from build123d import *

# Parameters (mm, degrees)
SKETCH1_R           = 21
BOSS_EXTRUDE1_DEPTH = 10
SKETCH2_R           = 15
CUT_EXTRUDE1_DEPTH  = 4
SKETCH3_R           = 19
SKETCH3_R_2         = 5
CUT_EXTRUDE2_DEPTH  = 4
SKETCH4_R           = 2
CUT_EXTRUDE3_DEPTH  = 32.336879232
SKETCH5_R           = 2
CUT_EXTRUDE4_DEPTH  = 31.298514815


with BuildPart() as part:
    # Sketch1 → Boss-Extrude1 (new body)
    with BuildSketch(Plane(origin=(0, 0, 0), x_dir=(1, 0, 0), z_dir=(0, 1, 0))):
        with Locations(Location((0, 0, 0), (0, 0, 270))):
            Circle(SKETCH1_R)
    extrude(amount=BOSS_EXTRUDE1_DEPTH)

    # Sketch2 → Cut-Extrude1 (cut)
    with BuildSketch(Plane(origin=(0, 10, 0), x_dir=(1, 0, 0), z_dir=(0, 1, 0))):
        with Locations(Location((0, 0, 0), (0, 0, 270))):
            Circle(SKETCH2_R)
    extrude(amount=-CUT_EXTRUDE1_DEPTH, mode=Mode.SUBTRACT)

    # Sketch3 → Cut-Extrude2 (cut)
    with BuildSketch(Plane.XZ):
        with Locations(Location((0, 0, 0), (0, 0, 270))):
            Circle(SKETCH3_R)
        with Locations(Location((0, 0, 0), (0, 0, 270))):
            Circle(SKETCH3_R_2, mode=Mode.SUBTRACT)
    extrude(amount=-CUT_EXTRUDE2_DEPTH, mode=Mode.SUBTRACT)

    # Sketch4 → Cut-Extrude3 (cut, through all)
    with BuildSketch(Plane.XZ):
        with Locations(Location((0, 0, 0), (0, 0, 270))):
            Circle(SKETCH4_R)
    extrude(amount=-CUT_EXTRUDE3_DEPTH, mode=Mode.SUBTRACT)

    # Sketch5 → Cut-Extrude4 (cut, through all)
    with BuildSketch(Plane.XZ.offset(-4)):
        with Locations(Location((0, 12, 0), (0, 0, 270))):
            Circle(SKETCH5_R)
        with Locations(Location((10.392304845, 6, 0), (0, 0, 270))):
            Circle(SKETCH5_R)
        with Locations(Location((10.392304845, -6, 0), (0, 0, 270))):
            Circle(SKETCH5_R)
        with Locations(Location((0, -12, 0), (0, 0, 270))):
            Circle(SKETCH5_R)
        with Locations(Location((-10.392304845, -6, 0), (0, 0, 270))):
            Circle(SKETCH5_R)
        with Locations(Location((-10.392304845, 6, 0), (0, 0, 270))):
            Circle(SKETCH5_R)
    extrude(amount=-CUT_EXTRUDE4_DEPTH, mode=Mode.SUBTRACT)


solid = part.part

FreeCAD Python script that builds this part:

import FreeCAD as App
import Part
import Sketcher
from FreeCAD import Vector

doc = App.newDocument("Part")
body = doc.addObject("PartDesign::Body", "Body")

# Sketch on XZ plane
sketch1 = body.newObject("Sketcher::SketchObject", "Sketch")
sketch1.AttachmentSupport = (doc.getObject("XZ_Plane"), [""])
sketch1.MapMode = "FlatFace"
sketch1.addGeometry(Part.Circle(Vector(0, 0, 0), Vector(0, 0, 1), 21), False)
sketch1.addConstraint([
    Sketcher.Constraint("Coincident", 0, 3, -1, 1),
    Sketcher.Constraint("Diameter", 0, 42.0),
])
pad1 = body.newObject("PartDesign::Pad", "Pad")
pad1.Profile = sketch1
pad1.Length = 10
pad1.Reversed = True

# Sketch on XZ plane
sketch2 = body.newObject("Sketcher::SketchObject", "Sketch001")
sketch2.AttachmentSupport = (doc.getObject("XZ_Plane"), [""])
sketch2.MapMode = "FlatFace"
sketch2.AttachmentOffset = App.Placement(Vector(0, 0, -10), App.Rotation())
sketch2.addGeometry(Part.Circle(Vector(0, 0, 0), Vector(0, 0, 1), 15), False)
sketch2.addConstraint([
    Sketcher.Constraint("Coincident", 0, 3, -1, 1),
    Sketcher.Constraint("Diameter", 0, 30.0),
])
pocket1 = body.newObject("PartDesign::Pocket", "Pocket")
pocket1.Profile = sketch2
pocket1.Length = 4
pocket1.Reversed = True

# Sketch on XZ plane
sketch3 = body.newObject("Sketcher::SketchObject", "Sketch002")
sketch3.AttachmentSupport = (doc.getObject("XZ_Plane"), [""])
sketch3.MapMode = "FlatFace"
sketch3.addGeometry([
    Part.Circle(Vector(0, 0, 0), Vector(0, 0, 1), 19),
    Part.Circle(Vector(0, 0, 0), Vector(0, 0, 1), 5),
], False)
sketch3.addConstraint([
    Sketcher.Constraint("Coincident", 0, 3, -1, 1),
    Sketcher.Constraint("Coincident", 1, 3, -1, 1),
    Sketcher.Constraint("Diameter", 0, 38.0),
    Sketcher.Constraint("Diameter", 1, 10.0),
])
pocket2 = body.newObject("PartDesign::Pocket", "Pocket001")
pocket2.Profile = sketch3
pocket2.Length = 4

# Sketch on XZ plane
sketch4 = body.newObject("Sketcher::SketchObject", "Sketch003")
sketch4.AttachmentSupport = (doc.getObject("XZ_Plane"), [""])
sketch4.MapMode = "FlatFace"
sketch4.addGeometry(Part.Circle(Vector(0, 0, 0), Vector(0, 0, 1), 2), False)
sketch4.addConstraint([
    Sketcher.Constraint("Coincident", 0, 3, -1, 1),
    Sketcher.Constraint("Diameter", 0, 4.0),
])
pocket3 = body.newObject("PartDesign::Pocket", "Pocket002")
pocket3.Profile = sketch4
pocket3.Type = "ThroughAll"

# Sketch on XZ plane
sketch5 = body.newObject("Sketcher::SketchObject", "Sketch004")
sketch5.AttachmentSupport = (doc.getObject("XZ_Plane"), [""])
sketch5.MapMode = "FlatFace"
sketch5.AttachmentOffset = App.Placement(Vector(0, 0, -4), App.Rotation())
sketch5.addGeometry([
    Part.Circle(Vector(0, 12, 0), Vector(0, 0, 1), 2),  # 0
    Part.Circle(Vector(10.392305, 6, 0), Vector(0, 0, 1), 2),  # 1
    Part.Circle(Vector(10.392305, -6, 0), Vector(0, 0, 1), 2),  # 2
    Part.Circle(Vector(0, -12, 0), Vector(0, 0, 1), 2),  # 3
    Part.Circle(Vector(-10.392305, -6, 0), Vector(0, 0, 1), 2),  # 4
    Part.Circle(Vector(-10.392305, 6, 0), Vector(0, 0, 1), 2),  # 5
], False)
sketch5.addConstraint([
    Sketcher.Constraint("Equal", 0, 1),
    Sketcher.Constraint("Equal", 1, 2),
    Sketcher.Constraint("Equal", 2, 3),
    Sketcher.Constraint("Equal", 3, 4),
    Sketcher.Constraint("Equal", 4, 5),
    Sketcher.Constraint("Symmetric", 0, 3, 3, 3, -1, 1),
    Sketcher.Constraint("Symmetric", 1, 3, 4, 3, -1, 1),
    Sketcher.Constraint("Symmetric", 2, 3, 5, 3, -1, 1),
    Sketcher.Constraint("Symmetric", 2, 3, 4, 3, -2),
    Sketcher.Constraint("PointOnObject", 0, 3, -2),
    Sketcher.Constraint("Diameter", 0, 4.0),
    Sketcher.Constraint("DistanceY", -1, 1, 0, 3, 12.0),
    Sketcher.Constraint("DistanceY", -1, 1, 1, 3, 6.0),
    Sketcher.Constraint("DistanceX", 4, 3, 2, 3, 20.78461),
])
pocket4 = body.newObject("PartDesign::Pocket", "Pocket003")
pocket4.Profile = sketch5
pocket4.Type = "ThroughAll"

doc.recompute()
